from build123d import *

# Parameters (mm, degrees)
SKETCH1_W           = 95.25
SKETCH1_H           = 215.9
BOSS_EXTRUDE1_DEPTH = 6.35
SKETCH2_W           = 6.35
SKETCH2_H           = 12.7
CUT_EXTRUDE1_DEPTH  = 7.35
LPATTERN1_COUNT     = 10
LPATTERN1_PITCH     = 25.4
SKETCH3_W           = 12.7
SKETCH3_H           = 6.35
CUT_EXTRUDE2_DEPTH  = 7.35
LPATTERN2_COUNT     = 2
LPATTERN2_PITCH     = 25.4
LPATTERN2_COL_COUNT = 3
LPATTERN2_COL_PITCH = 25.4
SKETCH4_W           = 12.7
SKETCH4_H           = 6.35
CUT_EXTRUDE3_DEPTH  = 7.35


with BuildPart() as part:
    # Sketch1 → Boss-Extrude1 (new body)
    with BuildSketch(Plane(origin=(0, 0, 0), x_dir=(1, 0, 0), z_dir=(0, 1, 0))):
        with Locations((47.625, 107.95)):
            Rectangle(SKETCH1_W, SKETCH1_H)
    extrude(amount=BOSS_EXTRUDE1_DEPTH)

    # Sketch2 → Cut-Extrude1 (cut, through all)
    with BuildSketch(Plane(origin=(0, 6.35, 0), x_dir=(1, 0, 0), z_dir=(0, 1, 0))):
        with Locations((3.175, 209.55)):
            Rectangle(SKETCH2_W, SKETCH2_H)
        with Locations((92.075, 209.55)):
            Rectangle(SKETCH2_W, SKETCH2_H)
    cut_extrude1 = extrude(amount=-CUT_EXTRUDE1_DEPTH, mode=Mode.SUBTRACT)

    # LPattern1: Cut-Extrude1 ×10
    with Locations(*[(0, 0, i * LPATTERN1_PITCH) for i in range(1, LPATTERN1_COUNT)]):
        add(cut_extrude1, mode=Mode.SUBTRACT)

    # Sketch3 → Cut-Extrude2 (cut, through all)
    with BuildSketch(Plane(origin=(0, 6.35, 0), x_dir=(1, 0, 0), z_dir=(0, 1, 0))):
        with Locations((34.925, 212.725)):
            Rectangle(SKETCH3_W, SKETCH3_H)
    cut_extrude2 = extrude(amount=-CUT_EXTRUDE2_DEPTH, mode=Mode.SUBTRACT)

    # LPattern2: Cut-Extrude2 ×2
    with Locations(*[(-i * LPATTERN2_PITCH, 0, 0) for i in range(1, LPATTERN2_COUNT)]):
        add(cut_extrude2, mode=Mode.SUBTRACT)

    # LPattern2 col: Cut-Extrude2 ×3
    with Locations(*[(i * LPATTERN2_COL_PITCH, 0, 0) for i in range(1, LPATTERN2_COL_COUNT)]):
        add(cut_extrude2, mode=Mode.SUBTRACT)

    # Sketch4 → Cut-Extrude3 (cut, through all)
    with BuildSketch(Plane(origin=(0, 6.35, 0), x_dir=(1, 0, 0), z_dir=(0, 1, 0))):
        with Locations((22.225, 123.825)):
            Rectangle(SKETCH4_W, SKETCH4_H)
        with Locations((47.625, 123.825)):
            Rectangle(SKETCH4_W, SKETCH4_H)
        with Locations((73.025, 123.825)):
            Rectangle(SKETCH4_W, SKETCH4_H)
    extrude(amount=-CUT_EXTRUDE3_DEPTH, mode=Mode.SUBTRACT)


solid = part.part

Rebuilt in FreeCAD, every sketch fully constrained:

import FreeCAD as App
import Part
import Sketcher
from FreeCAD import Vector
Q = App.Units.Quantity

doc = App.newDocument("Part")
body = doc.addObject("PartDesign::Body", "Body")

# Sketch on XZ plane
sketch1 = body.newObject("Sketcher::SketchObject", "Sketch")
sketch1.AttachmentSupport = (doc.getObject("XZ_Plane"), [""])
sketch1.MapMode = "FlatFace"
sketch1.addGeometry(Part.LineSegment(Vector(0, -215.9, 0), Vector(0, 0, 0)), False)
sketch1.addGeometry(Part.LineSegment(Vector(0, 0, 0), Vector(95.25, 0, 0)), False)
sketch1.addGeometry(Part.LineSegment(Vector(95.25, 0, 0), Vector(95.25, -215.9, 0)), False)
sketch1.addGeometry(Part.LineSegment(Vector(95.25, -215.9, 0), Vector(0, -215.9, 0)), False)
sketch1.addConstraint(Sketcher.Constraint("Coincident", 0, 2, 1, 1))
sketch1.addConstraint(Sketcher.Constraint("Coincident", 1, 2, 2, 1))
sketch1.addConstraint(Sketcher.Constraint("Coincident", 2, 2, 3, 1))
sketch1.addConstraint(Sketcher.Constraint("Coincident", 3, 2, 0, 1))
sketch1.addConstraint(Sketcher.Constraint("Vertical", 0))
sketch1.addConstraint(Sketcher.Constraint("Horizontal", 1))
sketch1.addConstraint(Sketcher.Constraint("Vertical", 2))
sketch1.addConstraint(Sketcher.Constraint("Horizontal", 3))
sketch1.addConstraint(Sketcher.Constraint("Coincident", 0, 2, -1, 1))
sketch1.addConstraint(Sketcher.Constraint("DistanceY", 0, 1, 0, 2, Q("8.5 in")))
sketch1.addConstraint(Sketcher.Constraint("DistanceX", 1, 1, 1, 2, Q("3.75 in")))
pad1 = body.newObject("PartDesign::Pad", "Pad")
pad1.Profile = sketch1
pad1.Length = Q("0.25 in")
pad1.Reversed = True

# Sketch on XZ plane
sketch2 = body.newObject("Sketcher::SketchObject", "Sketch001")
sketch2.AttachmentSupport = (doc.getObject("XZ_Plane"), [""])
sketch2.MapMode = "FlatFace"
sketch2.AttachmentOffset = App.Placement(Vector(0, 0, -0.25 * 25.4), App.Rotation())
sketch2.addGeometry(Part.LineSegment(Vector(0, -215.9, 0), Vector(0, -203.2, 0)), False)
sketch2.addGeometry(Part.LineSegment(Vector(0, -203.2, 0), Vector(6.35, -203.2, 0)), False)
sketch2.addGeometry(Part.LineSegment(Vector(6.35, -203.2, 0), Vector(6.35, -215.9, 0)), False)
sketch2.addGeometry(Part.LineSegment(Vector(6.35, -215.9, 0), Vector(0, -215.9, 0)), False)
sketch2.addGeometry(Part.LineSegment(Vector(88.9, -215.9, 0), Vector(88.9, -203.2, 0)), False)
sketch2.addGeometry(Part.LineSegment(Vector(88.9, -203.2, 0), Vector(95.25, -203.2, 0)), False)
sketch2.addGeometry(Part.LineSegment(Vector(95.25, -203.2, 0), Vector(95.25, -215.9, 0)), False)
sketch2.addGeometry(Part.LineSegment(Vector(95.25, -215.9, 0), Vector(88.9, -215.9, 0)), False)
sketch2.addConstraint(Sketcher.Constraint("Coincident", 0, 2, 1, 1))
sketch2.addConstraint(Sketcher.Constraint("Coincident", 1, 2, 2, 1))
sketch2.addConstraint(Sketcher.Constraint("Coincident", 2, 2, 3, 1))
sketch2.addConstraint(Sketcher.Constraint("Coincident", 3, 2, 0, 1))
sketch2.addConstraint(Sketcher.Constraint("Coincident", 4, 2, 5, 1))
sketch2.addConstraint(Sketcher.Constraint("Coincident", 5, 2, 6, 1))
sketch2.addConstraint(Sketcher.Constraint("Coincident", 6, 2, 7, 1))
sketch2.addConstraint(Sketcher.Constraint("Coincident", 7, 2, 4, 1))
sketch2.addConstraint(Sketcher.Constraint("Vertical", 0))
sketch2.addConstraint(Sketcher.Constraint("Horizontal", 1))
sketch2.addConstraint(Sketcher.Constraint("Vertical", 2))
sketch2.addConstraint(Sketcher.Constraint("Horizontal", 3))
sketch2.addConstraint(Sketcher.Constraint("Vertical", 4))
sketch2.addConstraint(Sketcher.Constraint("Horizontal", 5))
sketch2.addConstraint(Sketcher.Constraint("Vertical", 6))
sketch2.addConstraint(Sketcher.Constraint("Horizontal", 7))
sketch2.addConstraint(Sketcher.Constraint("PointOnObject", 0, 2, -2))
sketch2.addConstraint(Sketcher.Constraint("Horizontal", 1, 2, 4, 2))
sketch2.addConstraint(Sketcher.Constraint("Horizontal", 3, 2, 6, 2))
sketch2.addConstraint(Sketcher.Constraint("Equal", 3, 5))
sketch2.addConstraint(Sketcher.Constraint("DistanceY", 0, 1, 0, 2, Q("0.5 in")))
sketch2.addConstraint(Sketcher.Constraint("DistanceY", 0, 2, -1, 1, Q("8 in")))
sketch2.addConstraint(Sketcher.Constraint("DistanceX", 1, 1, 1, 2, Q("0.25 in")))
sketch2.addConstraint(Sketcher.Constraint("DistanceX", -1, 1, 4, 2, Q("3.5 in")))
pocket1 = body.newObject("PartDesign::Pocket", "Pocket")
pocket1.Profile = sketch2
pocket1.Type = "ThroughAll"
pocket1.Reversed = True
doc.recompute()

linearpattern = body.newObject("PartDesign::LinearPattern", "LinearPattern")
linearpattern.Originals = [pocket1]
linearpattern.Direction = (doc.getObject("Z_Axis"), [""])
linearpattern.Mode = "offset"
linearpattern.Offset = Q("1 in")
linearpattern.Occurrences = 10
body.Tip = linearpattern

# Sketch on XZ plane
sketch3 = body.newObject("Sketcher::SketchObject", "Sketch002")
sketch3.AttachmentSupport = (doc.getObject("XZ_Plane"), [""])
sketch3.MapMode = "FlatFace"
sketch3.AttachmentOffset = App.Placement(Vector(0, 0, -0.25 * 25.4), App.Rotation())
sketch3.addGeometry(Part.LineSegment(Vector(28.575, -215.9, 0), Vector(28.575, -209.55, 0)), False)
sketch3.addGeometry(Part.LineSegment(Vector(28.575, -209.55, 0), Vector(41.275, -209.55, 0)), False)
sketch3.addGeometry(Part.LineSegment(Vector(41.275, -209.55, 0), Vector(41.275, -215.9, 0)), False)
sketch3.addGeometry(Part.LineSegment(Vector(41.275, -215.9, 0), Vector(28.575, -215.9, 0)), False)
sketch3.addConstraint(Sketcher.Constraint("Coincident", 0, 2, 1, 1))
sketch3.addConstraint(Sketcher.Constraint("Coincident", 1, 2, 2, 1))
sketch3.addConstraint(Sketcher.Constraint("Coincident", 2, 2, 3, 1))
sketch3.addConstraint(Sketcher.Constraint("Coincident", 3, 2, 0, 1))
sketch3.addConstraint(Sketcher.Constraint("Vertical", 0))
sketch3.addConstraint(Sketcher.Constraint("Horizontal", 1))
sketch3.addConstraint(Sketcher.Constraint("Vertical", 2))
sketch3.addConstraint(Sketcher.Constraint("Horizontal", 3))
sketch3.addConstraint(Sketcher.Constraint("DistanceX", 1, 1, 1, 2, Q("0.5 in")))
sketch3.addConstraint(Sketcher.Constraint("DistanceY", 0, 1, 0, 2, Q("0.25 in")))
sketch3.addConstraint(Sketcher.Constraint("DistanceY", 2, 2, -1, 1, Q("8.5 in")))
sketch3.addConstraint(Sketcher.Constraint("DistanceX", -1, 1, 0, 2, Q("1.125 in")))
pocket2 = body.newObject("PartDesign::Pocket", "Pocket001")
pocket2.Profile = sketch3
pocket2.Type = "ThroughAll"
pocket2.Reversed = True
doc.recompute()

linearpattern2 = body.newObject("PartDesign::LinearPattern", "LinearPattern001")
linearpattern2.Originals = [pocket2]
linearpattern2.Direction = (doc.getObject("X_Axis"), [""])
linearpattern2.Mode = "offset"
linearpattern2.Offset = Q("1 in")
linearpattern2.Occurrences = 2
linearpattern2.Reversed = True
body.Tip = linearpattern2
doc.recompute()

linearpattern3 = body.newObject("PartDesign::LinearPattern", "LinearPattern002")
linearpattern3.Originals = [pocket2]
linearpattern3.Direction = (doc.getObject("X_Axis"), [""])
linearpattern3.Mode = "offset"
linearpattern3.Offset = Q("1 in")
linearpattern3.Occurrences = 3
body.Tip = linearpattern3

# Sketch on XZ plane
sketch4 = body.newObject("Sketcher::SketchObject", "Sketch003")
sketch4.AttachmentSupport = (doc.getObject("XZ_Plane"), [""])
sketch4.MapMode = "FlatFace"
sketch4.AttachmentOffset = App.Placement(Vector(0, 0, -0.25 * 25.4), App.Rotation())
sketch4.addGeometry(Part.LineSegment(Vector(15.875, -127, 0), Vector(15.875, -120.65, 0)), False)
sketch4.addGeometry(Part.LineSegment(Vector(15.875, -120.65, 0), Vector(28.575, -120.65, 0)), False)
sketch4.addGeometry(Part.LineSegment(Vector(28.575, -120.65, 0), Vector(28.575, -127, 0)), False)
sketch4.addGeometry(Part.LineSegment(Vector(28.575, -127, 0), Vector(15.875, -127, 0)), False)
sketch4.addGeometry(Part.LineSegment(Vector(41.275, -127, 0), Vector(41.275, -120.65, 0)), False)
sketch4.addGeometry(Part.LineSegment(Vector(41.275, -120.65, 0), Vector(53.975, -120.65, 0)), False)
sketch4.addGeometry(Part.LineSegment(Vector(53.975, -120.65, 0), Vector(53.975, -127, 0)), False)
sketch4.addGeometry(Part.LineSegment(Vector(53.975, -127, 0), Vector(41.275, -127, 0)), False)
sketch4.addGeometry(Part.LineSegment(Vector(66.675, -127, 0), Vector(66.675, -120.65, 0)), False)
sketch4.addGeometry(Part.LineSegment(Vector(66.675, -120.65, 0), Vector(79.375, -120.65, 0)), False)
sketch4.addGeometry(Part.LineSegment(Vector(79.375, -120.65, 0), Vector(79.375, -127, 0)), False)
sketch4.addGeometry(Part.LineSegment(Vector(79.375, -127, 0), Vector(66.675, -127, 0)), False)
sketch4.addConstraint(Sketcher.Constraint("Coincident", 0, 2, 1, 1))
sketch4.addConstraint(Sketcher.Constraint("Coincident", 1, 2, 2, 1))
sketch4.addConstraint(Sketcher.Constraint("Coincident", 2, 2, 3, 1))
sketch4.addConstraint(Sketcher.Constraint("Coincident", 3, 2, 0, 1))
sketch4.addConstraint(Sketcher.Constraint("Coincident", 4, 2, 5, 1))
sketch4.addConstraint(Sketcher.Constraint("Coincident", 5, 2, 6, 1))
sketch4.addConstraint(Sketcher.Constraint("Coincident", 6, 2, 7, 1))
sketch4.addConstraint(Sketcher.Constraint("Coincident", 7, 2, 4, 1))
sketch4.addConstraint(Sketcher.Constraint("Coincident", 8, 2, 9, 1))
sketch4.addConstraint(Sketcher.Constraint("Coincident", 9, 2, 10, 1))
sketch4.addConstraint(Sketcher.Constraint("Coincident", 10, 2, 11, 1))
sketch4.addConstraint(Sketcher.Constraint("Coincident", 11, 2, 8, 1))
sketch4.addConstraint(Sketcher.Constraint("Vertical", 0))
sketch4.addConstraint(Sketcher.Constraint("Horizontal", 1))
sketch4.addConstraint(Sketcher.Constraint("Vertical", 2))
sketch4.addConstraint(Sketcher.Constraint("Horizontal", 3))
sketch4.addConstraint(Sketcher.Constraint("Vertical", 4))
sketch4.addConstraint(Sketcher.Constraint("Horizontal", 5))
sketch4.addConstraint(Sketcher.Constraint("Vertical", 6))
sketch4.addConstraint(Sketcher.Constraint("Horizontal", 7))
sketch4.addConstraint(Sketcher.Constraint("Vertical", 8))
sketch4.addConstraint(Sketcher.Constraint("Horizontal", 9))
sketch4.addConstraint(Sketcher.Constraint("Vertical", 10))
sketch4.addConstraint(Sketcher.Constraint("Horizontal", 11))
sketch4.addConstraint(Sketcher.Constraint("Horizontal", 1, 2, 4, 2))
sketch4.addConstraint(Sketcher.Constraint("Horizontal", 3, 2, 6, 2))
sketch4.addConstraint(Sketcher.Constraint("Horizontal", 5, 2, 8, 2))
sketch4.addConstraint(Sketcher.Constraint("Horizontal", 7, 2, 10, 2))
sketch4.addConstraint(Sketcher.Constraint("Equal", 3, 5))
sketch4.addConstraint(Sketcher.Constraint("Equal", 7, 9))
sketch4.addConstraint(Sketcher.Constraint("DistanceX", 1, 1, 1, 2, Q("0.5 in")))
sketch4.addConstraint(Sketcher.Constraint("DistanceY", 2, 2, -1, 1, Q("5 in")))
sketch4.addConstraint(Sketcher.Constraint("DistanceX", 0, 2, 4, 2, Q("1 in")))
sketch4.addConstraint(Sketcher.Constraint("DistanceX", 4, 2, 8, 2, Q("1 in")))
sketch4.addConstraint(Sketcher.Constraint("DistanceY", 0, 1, 0, 2, Q("0.25 in")))
sketch4.addConstraint(Sketcher.Constraint("DistanceX", -1, 1, 0, 2, Q("0.625 in")))
pocket3 = body.newObject("PartDesign::Pocket", "Pocket002")
pocket3.Profile = sketch4
pocket3.Type = "ThroughAll"
pocket3.Reversed = True

doc.recompute()
